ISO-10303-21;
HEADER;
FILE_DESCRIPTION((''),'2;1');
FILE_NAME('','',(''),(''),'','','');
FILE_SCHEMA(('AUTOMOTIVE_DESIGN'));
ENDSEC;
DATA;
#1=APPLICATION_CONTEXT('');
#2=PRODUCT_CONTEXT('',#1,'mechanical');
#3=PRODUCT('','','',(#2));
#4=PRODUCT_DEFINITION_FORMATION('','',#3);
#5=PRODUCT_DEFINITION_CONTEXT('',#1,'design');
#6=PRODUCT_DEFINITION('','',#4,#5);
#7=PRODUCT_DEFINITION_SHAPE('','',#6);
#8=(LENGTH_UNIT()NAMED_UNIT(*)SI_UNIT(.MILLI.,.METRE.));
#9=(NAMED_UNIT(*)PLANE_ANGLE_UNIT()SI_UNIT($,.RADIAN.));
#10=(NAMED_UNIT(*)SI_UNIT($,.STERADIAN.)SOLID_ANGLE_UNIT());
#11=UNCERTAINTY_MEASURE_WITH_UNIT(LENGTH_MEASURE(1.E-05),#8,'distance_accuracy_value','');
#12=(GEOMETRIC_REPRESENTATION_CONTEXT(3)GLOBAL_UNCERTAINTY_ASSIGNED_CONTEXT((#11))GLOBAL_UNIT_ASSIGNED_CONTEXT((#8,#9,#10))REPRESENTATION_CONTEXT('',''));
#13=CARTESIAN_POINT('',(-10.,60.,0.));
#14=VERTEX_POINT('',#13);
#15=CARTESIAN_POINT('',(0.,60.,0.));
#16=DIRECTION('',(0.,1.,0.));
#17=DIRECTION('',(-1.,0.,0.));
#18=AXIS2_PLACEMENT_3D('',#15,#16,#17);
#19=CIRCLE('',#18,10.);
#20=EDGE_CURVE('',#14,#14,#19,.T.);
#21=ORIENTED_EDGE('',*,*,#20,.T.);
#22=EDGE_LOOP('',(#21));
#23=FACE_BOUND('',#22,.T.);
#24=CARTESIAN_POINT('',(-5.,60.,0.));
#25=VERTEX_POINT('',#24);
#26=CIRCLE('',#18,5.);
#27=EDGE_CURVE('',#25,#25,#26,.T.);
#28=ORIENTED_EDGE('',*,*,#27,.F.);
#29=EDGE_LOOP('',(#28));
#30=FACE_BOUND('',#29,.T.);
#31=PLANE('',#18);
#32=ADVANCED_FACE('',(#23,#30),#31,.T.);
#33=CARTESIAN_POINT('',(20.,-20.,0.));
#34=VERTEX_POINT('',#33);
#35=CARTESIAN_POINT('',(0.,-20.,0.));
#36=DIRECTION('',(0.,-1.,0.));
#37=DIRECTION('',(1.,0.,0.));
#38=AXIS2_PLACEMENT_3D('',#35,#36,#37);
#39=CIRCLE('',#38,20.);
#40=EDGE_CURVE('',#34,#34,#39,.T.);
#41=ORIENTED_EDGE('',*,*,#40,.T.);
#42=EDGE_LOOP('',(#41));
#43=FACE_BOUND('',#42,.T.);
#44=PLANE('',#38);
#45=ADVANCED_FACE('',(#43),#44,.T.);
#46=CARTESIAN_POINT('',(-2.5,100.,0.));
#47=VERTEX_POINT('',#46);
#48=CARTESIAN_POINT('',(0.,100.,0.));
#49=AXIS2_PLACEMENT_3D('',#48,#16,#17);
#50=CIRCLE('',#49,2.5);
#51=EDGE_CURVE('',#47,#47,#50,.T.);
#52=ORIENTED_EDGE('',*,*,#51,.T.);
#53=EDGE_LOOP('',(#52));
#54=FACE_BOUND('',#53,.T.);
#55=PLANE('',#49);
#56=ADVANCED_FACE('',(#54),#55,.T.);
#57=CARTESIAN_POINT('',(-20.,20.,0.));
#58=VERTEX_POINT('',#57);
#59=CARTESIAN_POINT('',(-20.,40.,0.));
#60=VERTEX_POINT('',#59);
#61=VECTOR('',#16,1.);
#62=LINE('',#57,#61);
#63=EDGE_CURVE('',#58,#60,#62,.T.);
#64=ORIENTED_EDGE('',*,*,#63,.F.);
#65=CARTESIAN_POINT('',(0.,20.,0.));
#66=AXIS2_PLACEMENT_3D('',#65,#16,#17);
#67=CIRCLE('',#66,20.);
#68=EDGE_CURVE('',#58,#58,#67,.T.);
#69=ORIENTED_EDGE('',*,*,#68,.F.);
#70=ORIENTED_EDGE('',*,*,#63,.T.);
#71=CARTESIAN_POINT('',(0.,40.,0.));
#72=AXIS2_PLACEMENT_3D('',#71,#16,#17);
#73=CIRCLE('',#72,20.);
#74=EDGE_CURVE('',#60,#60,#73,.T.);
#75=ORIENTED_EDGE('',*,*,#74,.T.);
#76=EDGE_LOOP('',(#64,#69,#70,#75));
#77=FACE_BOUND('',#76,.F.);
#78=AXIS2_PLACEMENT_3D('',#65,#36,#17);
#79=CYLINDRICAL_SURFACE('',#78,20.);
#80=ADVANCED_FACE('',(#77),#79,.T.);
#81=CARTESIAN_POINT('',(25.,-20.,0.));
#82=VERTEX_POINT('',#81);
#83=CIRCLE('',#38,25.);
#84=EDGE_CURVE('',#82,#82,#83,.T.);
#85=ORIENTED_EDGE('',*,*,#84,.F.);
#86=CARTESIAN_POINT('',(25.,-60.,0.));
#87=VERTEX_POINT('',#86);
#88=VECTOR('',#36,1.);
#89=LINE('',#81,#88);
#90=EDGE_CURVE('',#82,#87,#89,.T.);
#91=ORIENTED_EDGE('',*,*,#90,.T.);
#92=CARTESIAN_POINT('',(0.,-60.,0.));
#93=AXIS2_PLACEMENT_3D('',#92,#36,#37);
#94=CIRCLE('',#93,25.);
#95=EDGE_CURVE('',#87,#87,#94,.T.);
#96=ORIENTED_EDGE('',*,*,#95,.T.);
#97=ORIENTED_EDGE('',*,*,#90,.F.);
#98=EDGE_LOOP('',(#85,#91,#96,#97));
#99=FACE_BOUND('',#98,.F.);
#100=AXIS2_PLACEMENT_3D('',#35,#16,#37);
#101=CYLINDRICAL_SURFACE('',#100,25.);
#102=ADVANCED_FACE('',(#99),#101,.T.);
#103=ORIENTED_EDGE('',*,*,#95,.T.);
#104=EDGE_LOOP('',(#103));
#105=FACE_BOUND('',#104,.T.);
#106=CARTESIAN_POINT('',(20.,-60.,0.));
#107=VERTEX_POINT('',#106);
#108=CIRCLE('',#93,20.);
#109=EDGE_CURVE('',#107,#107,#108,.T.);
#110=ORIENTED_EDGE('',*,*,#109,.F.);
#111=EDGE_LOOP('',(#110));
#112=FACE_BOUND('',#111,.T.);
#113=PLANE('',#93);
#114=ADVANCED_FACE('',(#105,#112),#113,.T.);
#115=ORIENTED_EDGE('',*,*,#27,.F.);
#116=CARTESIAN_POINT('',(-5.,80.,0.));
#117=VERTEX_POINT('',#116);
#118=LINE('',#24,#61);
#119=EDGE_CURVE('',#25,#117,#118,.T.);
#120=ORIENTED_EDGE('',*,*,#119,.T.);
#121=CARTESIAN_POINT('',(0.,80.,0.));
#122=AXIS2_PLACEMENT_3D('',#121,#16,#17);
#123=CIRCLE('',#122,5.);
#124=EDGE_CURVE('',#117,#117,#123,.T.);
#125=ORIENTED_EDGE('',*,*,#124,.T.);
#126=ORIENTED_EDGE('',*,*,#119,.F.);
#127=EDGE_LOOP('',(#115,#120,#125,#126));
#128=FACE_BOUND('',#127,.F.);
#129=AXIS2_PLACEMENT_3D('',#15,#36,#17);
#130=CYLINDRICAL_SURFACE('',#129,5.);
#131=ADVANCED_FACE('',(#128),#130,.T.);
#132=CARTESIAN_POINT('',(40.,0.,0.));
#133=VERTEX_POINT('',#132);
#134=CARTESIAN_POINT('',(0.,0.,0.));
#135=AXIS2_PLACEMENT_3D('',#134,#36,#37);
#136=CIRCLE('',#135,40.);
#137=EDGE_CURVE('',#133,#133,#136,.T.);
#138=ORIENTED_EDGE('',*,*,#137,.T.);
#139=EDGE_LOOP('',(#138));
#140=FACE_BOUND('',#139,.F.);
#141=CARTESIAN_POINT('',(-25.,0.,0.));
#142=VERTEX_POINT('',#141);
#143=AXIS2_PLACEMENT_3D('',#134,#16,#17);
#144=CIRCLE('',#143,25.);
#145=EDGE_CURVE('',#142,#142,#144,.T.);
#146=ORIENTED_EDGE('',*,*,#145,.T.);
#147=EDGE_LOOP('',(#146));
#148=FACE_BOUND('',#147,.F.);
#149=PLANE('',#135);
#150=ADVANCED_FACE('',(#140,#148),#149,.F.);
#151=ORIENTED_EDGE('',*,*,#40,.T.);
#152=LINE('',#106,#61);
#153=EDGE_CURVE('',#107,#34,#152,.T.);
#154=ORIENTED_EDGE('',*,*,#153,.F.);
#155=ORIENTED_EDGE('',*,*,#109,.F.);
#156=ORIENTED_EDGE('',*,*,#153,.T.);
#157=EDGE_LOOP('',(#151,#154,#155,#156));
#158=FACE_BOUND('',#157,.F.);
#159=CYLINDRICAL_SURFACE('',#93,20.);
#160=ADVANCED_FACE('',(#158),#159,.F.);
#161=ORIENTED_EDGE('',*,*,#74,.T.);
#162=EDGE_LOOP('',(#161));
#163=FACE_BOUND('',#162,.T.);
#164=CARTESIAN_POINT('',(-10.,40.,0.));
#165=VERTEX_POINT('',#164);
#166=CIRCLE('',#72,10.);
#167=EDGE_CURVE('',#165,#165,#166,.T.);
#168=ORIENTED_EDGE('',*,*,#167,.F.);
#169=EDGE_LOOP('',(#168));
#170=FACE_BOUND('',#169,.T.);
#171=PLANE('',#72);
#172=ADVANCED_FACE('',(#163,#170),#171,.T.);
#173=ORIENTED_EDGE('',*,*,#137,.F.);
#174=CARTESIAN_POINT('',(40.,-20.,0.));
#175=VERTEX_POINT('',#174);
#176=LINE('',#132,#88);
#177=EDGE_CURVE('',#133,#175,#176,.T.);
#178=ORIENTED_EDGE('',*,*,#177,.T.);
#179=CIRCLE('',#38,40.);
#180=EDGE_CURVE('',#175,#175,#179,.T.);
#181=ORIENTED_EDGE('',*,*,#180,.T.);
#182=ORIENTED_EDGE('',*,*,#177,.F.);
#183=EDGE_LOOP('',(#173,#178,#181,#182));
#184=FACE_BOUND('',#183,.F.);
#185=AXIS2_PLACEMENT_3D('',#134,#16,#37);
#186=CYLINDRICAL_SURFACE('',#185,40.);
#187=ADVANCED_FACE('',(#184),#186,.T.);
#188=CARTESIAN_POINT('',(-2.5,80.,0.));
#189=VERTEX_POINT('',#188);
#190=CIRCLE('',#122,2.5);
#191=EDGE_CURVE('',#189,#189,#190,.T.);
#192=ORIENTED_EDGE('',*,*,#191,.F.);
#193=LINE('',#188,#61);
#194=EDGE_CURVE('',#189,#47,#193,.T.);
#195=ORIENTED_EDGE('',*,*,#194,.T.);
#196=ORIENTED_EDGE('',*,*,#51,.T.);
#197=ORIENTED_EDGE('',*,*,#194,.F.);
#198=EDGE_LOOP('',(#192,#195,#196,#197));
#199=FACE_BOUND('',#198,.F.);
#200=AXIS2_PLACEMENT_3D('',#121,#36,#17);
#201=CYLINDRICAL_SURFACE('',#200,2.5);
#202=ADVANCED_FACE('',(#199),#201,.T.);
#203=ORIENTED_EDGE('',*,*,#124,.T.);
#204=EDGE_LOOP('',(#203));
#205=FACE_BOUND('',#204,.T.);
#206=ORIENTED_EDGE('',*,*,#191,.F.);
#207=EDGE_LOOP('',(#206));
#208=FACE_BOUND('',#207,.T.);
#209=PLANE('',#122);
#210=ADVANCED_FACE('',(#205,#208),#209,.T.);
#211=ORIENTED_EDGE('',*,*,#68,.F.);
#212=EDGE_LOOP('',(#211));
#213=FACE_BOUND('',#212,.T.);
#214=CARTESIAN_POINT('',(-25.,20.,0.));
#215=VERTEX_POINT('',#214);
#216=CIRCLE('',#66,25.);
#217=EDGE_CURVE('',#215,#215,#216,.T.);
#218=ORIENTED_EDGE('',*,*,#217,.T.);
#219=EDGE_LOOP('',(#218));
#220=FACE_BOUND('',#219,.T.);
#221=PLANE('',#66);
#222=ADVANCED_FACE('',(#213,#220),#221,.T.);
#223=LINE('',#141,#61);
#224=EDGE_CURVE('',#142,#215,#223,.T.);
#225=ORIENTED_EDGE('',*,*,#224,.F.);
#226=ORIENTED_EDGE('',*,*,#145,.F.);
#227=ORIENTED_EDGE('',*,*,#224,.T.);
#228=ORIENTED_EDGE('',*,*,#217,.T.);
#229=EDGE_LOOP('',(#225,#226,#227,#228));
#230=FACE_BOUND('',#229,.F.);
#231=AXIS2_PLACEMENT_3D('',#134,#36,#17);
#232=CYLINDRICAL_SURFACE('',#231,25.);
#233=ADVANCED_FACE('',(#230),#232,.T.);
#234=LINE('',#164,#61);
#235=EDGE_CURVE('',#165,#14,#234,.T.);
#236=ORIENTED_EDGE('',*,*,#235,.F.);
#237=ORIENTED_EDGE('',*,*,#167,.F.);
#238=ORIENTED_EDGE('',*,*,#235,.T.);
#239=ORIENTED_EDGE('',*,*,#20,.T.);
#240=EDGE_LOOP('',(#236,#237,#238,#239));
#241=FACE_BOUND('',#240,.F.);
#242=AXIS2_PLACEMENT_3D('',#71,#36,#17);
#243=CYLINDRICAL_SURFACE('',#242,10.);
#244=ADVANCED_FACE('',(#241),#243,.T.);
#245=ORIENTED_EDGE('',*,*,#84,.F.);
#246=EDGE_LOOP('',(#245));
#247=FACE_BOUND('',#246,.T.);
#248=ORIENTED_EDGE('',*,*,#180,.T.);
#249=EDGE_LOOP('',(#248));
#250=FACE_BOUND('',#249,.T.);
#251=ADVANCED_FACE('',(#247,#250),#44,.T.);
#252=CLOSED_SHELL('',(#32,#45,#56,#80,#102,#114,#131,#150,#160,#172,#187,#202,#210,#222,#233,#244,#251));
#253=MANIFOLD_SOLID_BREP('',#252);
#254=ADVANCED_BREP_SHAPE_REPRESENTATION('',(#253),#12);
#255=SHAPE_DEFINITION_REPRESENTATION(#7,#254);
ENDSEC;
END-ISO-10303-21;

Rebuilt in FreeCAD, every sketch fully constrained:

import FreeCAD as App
import Part
import Sketcher

doc = App.newDocument("Part")
body = doc.addObject("PartDesign::Body", "Body")

sketch1 = body.newObject("Sketcher::SketchObject", "Sketch")
sketch1.AttachmentSupport = (doc.getObject("XZ_Plane"), [""])
sketch1.MapMode = "FlatFace"
sketch1.addGeometry(Part.Circle(App.Vector(0, 0, 0), App.Vector(0, 0, 1), 40), False)
sketch1.addConstraint([
    Sketcher.Constraint("Coincident", 0, 3, -1, 1),
    Sketcher.Constraint("Diameter", 0, 80.0),
])
pad1 = body.newObject("PartDesign::Pad", "Pad")
pad1.Profile = sketch1
pad1.Length = 20

sketch2 = body.newObject("Sketcher::SketchObject", "Sketch001")
sketch2.AttachmentSupport = (doc.getObject("XZ_Plane"), [""])
sketch2.MapMode = "FlatFace"
sketch2.AttachmentOffset = App.Placement(App.Vector(0, 0, 20), App.Rotation())
sketch2.addGeometry(Part.Circle(App.Vector(0, 0, 0), App.Vector(0, 0, 1), 25), False)
sketch2.addConstraint([
    Sketcher.Constraint("Coincident", 0, 3, -1, 1),
    Sketcher.Constraint("Diameter", 0, 50.0),
])
pad2 = body.newObject("PartDesign::Pad", "Pad001")
pad2.Profile = sketch2
pad2.Length = 40

sketch3 = body.newObject("Sketcher::SketchObject", "Sketch002")
sketch3.AttachmentSupport = (doc.getObject("XZ_Plane"), [""])
sketch3.MapMode = "FlatFace"
sketch3.AttachmentOffset = App.Placement(App.Vector(0, 0, 60), App.Rotation())
sketch3.addGeometry(Part.Circle(App.Vector(0, 0, 0), App.Vector(0, 0, 1), 20), False)
sketch3.addConstraint([
    Sketcher.Constraint("Coincident", 0, 3, -1, 1),
    Sketcher.Constraint("Diameter", 0, 40.0),
])
pocket1 = body.newObject("PartDesign::Pocket", "Pocket")
pocket1.Profile = sketch3
pocket1.Length = 40

sketch4 = body.newObject("Sketcher::SketchObject", "Sketch003")
sketch4.AttachmentSupport = (doc.getObject("XZ_Plane"), [""])
sketch4.MapMode = "FlatFace"
sketch4.addGeometry(Part.Circle(App.Vector(0, 0, 0), App.Vector(0, 0, 1), 25), False)
sketch4.addConstraint([
    Sketcher.Constraint("Coincident", 0, 3, -1, 1),
    Sketcher.Constraint("Diameter", 0, 50.0),
])
pad3 = body.newObject("PartDesign::Pad", "Pad002")
pad3.Profile = sketch4
pad3.Length = 20
pad3.Reversed = True

sketch5 = body.newObject("Sketcher::SketchObject", "Sketch004")
sketch5.AttachmentSupport = (doc.getObject("XZ_Plane"), [""])
sketch5.MapMode = "FlatFace"
sketch5.AttachmentOffset = App.Placement(App.Vector(0, 0, -20), App.Rotation())
sketch5.addGeometry(Part.Circle(App.Vector(0, 0, 0), App.Vector(0, 0, 1), 20), False)
sketch5.addConstraint([
    Sketcher.Constraint("Coincident", 0, 3, -1, 1),
    Sketcher.Constraint("Diameter", 0, 40.0),
])
pad4 = body.newObject("PartDesign::Pad", "Pad003")
pad4.Profile = sketch5
pad4.Length = 20
pad4.Reversed = True

sketch6 = body.newObject("Sketcher::SketchObject", "Sketch005")
sketch6.AttachmentSupport = (doc.getObject("XZ_Plane"), [""])
sketch6.MapMode = "FlatFace"
sketch6.AttachmentOffset = App.Placement(App.Vector(0, 0, -40), App.Rotation())
sketch6.addGeometry(Part.Circle(App.Vector(0, 0, 0), App.Vector(0, 0, 1), 10), False)
sketch6.addConstraint([
    Sketcher.Constraint("Coincident", 0, 3, -1, 1),
    Sketcher.Constraint("Diameter", 0, 20.0),
])
pad5 = body.newObject("PartDesign::Pad", "Pad004")
pad5.Profile = sketch6
pad5.Length = 20
pad5.Reversed = True

sketch7 = body.newObject("Sketcher::SketchObject", "Sketch006")
sketch7.AttachmentSupport = (doc.getObject("XZ_Plane"), [""])
sketch7.MapMode = "FlatFace"
sketch7.AttachmentOffset = App.Placement(App.Vector(0, 0, -60), App.Rotation())
sketch7.addGeometry(Part.Circle(App.Vector(0, 0, 0), App.Vector(0, 0, 1), 5), False)
sketch7.addConstraint([
    Sketcher.Constraint("Coincident", 0, 3, -1, 1),
    Sketcher.Constraint("Diameter", 0, 10.0),
])
pad6 = body.newObject("PartDesign::Pad", "Pad005")
pad6.Profile = sketch7
pad6.Length = 20
pad6.Reversed = True

sketch8 = body.newObject("Sketcher::SketchObject", "Sketch007")
sketch8.AttachmentSupport = (doc.getObject("XZ_Plane"), [""])
sketch8.MapMode = "FlatFace"
sketch8.AttachmentOffset = App.Placement(App.Vector(0, 0, -80), App.Rotation())
sketch8.addGeometry(Part.Circle(App.Vector(0, 0, 0), App.Vector(0, 0, 1), 2.5), False)
sketch8.addConstraint([
    Sketcher.Constraint("Coincident", 0, 3, -1, 1),
    Sketcher.Constraint("Diameter", 0, 5.0),
])
pad7 = body.newObject("PartDesign::Pad", "Pad006")
pad7.Profile = sketch8
pad7.Length = 20
pad7.Reversed = True

doc.recompute()
